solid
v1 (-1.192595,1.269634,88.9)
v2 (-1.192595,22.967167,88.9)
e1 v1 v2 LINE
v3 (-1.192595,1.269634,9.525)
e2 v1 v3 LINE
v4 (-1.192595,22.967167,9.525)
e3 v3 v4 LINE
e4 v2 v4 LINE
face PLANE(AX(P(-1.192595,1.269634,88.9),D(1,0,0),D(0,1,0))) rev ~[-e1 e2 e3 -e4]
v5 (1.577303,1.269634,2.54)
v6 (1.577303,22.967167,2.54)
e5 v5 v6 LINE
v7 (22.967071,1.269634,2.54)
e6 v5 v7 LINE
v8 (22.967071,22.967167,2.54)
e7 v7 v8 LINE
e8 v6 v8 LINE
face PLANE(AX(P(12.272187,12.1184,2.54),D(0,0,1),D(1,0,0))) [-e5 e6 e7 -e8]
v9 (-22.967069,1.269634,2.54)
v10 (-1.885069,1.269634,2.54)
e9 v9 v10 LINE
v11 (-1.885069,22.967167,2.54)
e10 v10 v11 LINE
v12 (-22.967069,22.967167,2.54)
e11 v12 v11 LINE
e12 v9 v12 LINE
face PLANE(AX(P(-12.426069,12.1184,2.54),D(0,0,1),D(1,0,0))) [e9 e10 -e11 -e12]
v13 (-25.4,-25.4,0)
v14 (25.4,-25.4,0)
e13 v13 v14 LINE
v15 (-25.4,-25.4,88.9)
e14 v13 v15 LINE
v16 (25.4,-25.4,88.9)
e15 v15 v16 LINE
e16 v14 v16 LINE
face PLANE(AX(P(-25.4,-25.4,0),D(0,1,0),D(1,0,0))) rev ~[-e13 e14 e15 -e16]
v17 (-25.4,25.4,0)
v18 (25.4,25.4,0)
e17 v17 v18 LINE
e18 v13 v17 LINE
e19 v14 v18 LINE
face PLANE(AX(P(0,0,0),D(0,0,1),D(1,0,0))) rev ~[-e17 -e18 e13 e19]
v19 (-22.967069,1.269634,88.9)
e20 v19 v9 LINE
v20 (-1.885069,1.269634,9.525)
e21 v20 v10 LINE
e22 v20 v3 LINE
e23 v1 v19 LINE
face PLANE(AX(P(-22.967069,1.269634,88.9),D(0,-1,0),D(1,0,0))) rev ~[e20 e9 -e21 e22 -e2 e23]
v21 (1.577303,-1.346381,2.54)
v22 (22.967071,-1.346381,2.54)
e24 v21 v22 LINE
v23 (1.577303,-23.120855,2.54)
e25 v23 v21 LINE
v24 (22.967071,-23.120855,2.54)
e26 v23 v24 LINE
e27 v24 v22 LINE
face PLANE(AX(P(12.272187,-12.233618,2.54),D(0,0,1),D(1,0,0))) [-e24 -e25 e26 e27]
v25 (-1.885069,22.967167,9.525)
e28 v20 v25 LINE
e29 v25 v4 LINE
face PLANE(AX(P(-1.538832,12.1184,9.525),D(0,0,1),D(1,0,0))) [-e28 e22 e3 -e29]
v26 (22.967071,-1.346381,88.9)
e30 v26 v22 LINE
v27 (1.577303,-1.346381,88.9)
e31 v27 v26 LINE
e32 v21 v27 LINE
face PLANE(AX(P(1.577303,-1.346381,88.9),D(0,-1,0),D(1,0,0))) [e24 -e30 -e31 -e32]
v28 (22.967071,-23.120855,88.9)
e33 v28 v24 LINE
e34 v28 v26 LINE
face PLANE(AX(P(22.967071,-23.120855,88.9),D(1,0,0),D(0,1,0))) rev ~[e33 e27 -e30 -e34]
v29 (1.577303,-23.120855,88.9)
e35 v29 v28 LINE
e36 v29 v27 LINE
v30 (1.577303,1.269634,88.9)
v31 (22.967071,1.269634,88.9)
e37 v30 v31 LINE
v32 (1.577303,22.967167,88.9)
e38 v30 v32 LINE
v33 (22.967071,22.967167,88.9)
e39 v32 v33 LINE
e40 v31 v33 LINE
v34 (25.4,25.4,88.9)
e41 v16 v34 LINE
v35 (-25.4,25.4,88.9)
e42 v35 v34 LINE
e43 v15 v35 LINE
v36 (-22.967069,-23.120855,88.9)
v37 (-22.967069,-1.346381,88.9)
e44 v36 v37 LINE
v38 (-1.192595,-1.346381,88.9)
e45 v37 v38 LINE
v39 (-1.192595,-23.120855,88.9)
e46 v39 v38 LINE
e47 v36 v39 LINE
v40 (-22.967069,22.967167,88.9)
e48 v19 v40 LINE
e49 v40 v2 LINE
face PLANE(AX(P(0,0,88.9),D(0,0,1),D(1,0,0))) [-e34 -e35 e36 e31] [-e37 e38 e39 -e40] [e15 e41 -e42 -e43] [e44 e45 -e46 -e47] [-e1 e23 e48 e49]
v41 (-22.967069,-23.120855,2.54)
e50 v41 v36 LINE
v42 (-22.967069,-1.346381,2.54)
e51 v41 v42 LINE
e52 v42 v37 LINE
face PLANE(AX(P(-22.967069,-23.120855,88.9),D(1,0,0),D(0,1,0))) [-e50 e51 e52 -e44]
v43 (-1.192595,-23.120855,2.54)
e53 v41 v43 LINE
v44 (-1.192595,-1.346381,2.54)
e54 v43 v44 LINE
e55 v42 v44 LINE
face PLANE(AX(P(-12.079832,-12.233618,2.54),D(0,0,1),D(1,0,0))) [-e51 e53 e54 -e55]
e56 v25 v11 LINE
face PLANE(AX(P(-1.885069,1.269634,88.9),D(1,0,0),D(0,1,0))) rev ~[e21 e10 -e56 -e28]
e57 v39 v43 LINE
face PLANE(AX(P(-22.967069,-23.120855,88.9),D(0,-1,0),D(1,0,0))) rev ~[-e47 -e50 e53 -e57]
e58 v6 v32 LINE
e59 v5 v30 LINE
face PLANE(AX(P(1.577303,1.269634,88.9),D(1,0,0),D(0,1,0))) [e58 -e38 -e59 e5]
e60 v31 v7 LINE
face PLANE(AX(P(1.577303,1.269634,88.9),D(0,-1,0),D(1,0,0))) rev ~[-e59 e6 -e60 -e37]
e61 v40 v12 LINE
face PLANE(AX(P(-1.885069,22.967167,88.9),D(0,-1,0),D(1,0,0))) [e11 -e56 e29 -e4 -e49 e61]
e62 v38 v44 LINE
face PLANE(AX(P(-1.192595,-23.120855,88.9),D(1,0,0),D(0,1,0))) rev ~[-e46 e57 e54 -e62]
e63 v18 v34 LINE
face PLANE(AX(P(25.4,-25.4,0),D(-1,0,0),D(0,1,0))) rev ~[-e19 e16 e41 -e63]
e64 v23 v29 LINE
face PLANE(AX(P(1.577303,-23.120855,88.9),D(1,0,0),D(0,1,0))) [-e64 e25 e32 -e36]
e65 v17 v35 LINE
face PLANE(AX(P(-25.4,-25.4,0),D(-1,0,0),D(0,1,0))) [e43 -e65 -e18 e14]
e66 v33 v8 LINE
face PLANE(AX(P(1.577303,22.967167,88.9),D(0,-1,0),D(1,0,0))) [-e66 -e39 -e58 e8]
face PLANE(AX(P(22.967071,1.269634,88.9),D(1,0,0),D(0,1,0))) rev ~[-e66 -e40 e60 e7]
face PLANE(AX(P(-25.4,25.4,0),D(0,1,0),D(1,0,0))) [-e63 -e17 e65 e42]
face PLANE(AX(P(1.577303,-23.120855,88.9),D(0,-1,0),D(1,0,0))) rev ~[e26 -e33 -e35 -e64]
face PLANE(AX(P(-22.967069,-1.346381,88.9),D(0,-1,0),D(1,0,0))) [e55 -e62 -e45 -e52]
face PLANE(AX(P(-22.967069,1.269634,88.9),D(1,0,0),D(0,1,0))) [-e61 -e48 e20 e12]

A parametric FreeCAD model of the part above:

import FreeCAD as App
import Part
import Sketcher
from FreeCAD import Vector
Q = App.Units.Quantity

doc = App.newDocument("Part")
body = doc.addObject("PartDesign::Body", "Body")

# Sketch on XY plane
sketch1 = body.newObject("Sketcher::SketchObject", "Sketch")
sketch1.AttachmentSupport = (doc.getObject("XY_Plane"), [""])
sketch1.MapMode = "FlatFace"
sketch1.addGeometry([
    Part.LineSegment(Vector(-25, 25, 0), Vector(-25, -25, 0)),
    Part.LineSegment(Vector(-25, -25, 0), Vector(25, -25, 0)),
    Part.LineSegment(Vector(25, -25, 0), Vector(25, 25, 0)),
    Part.LineSegment(Vector(25, 25, 0), Vector(-25, 25, 0)),
], False)
sketch1.addConstraint([
    Sketcher.Constraint("Coincident", 0, 2, 1, 1),
    Sketcher.Constraint("Coincident", 1, 2, 2, 1),
    Sketcher.Constraint("Coincident", 2, 2, 3, 1),
    Sketcher.Constraint("Coincident", 3, 2, 0, 1),
    Sketcher.Constraint("Vertical", 0),
    Sketcher.Constraint("Horizontal", 1),
    Sketcher.Constraint("Vertical", 2),
    Sketcher.Constraint("Horizontal", 3),
    Sketcher.Constraint("Symmetric", 0, 2, 2, 2, -1, 1),
    Sketcher.Constraint("Equal", 3, 0),
    Sketcher.Constraint("DistanceX", 1, 1, 1, 2, Q("2 in")),
])
pad1 = body.newObject("PartDesign::Pad", "Pad")
pad1.Profile = sketch1
pad1.Length = Q("3.5 in")

# Sketch on XY plane
sketch2 = body.newObject("Sketcher::SketchObject", "Sketch001")
sketch2.AttachmentSupport = (doc.getObject("XY_Plane"), [""])
sketch2.MapMode = "FlatFace"
sketch2.AttachmentOffset = App.Placement(Vector(0, 0, 3.5 * 25.4), App.Rotation())
sketch2.addGeometry([
    Part.LineSegment(Vector(-23, -1, 0), Vector(-23, -23, 0)),  # 0
    Part.LineSegment(Vector(-23, -23, 0), Vector(-1, -23, 0)),  # 1
    Part.LineSegment(Vector(-1, -23, 0), Vector(-1, -1, 0)),  # 2
    Part.LineSegment(Vector(-1, -1, 0), Vector(-23, -1, 0)),  # 3
    Part.LineSegment(Vector(2, -1, 0), Vector(2, -23, 0)),  # 4
    Part.LineSegment(Vector(2, -23, 0), Vector(23, -23, 0)),  # 5
    Part.LineSegment(Vector(23, -23, 0), Vector(23, -1, 0)),  # 6
    Part.LineSegment(Vector(23, -1, 0), Vector(2, -1, 0)),  # 7
    Part.LineSegment(Vector(2, 23, 0), Vector(2, 1, 0)),  # 8
    Part.LineSegment(Vector(2, 1, 0), Vector(23, 1, 0)),  # 9
    Part.LineSegment(Vector(23, 1, 0), Vector(23, 23, 0)),  # 10
    Part.LineSegment(Vector(23, 23, 0), Vector(2, 23, 0)),  # 11
], False)
sketch2.addConstraint([
    Sketcher.Constraint("Coincident", 0, 2, 1, 1),
    Sketcher.Constraint("Coincident", 1, 2, 2, 1),
    Sketcher.Constraint("Coincident", 2, 2, 3, 1),
    Sketcher.Constraint("Coincident", 3, 2, 0, 1),
    Sketcher.Constraint("Coincident", 4, 2, 5, 1),
    Sketcher.Constraint("Coincident", 5, 2, 6, 1),
    Sketcher.Constraint("Coincident", 6, 2, 7, 1),
    Sketcher.Constraint("Coincident", 7, 2, 4, 1),
    Sketcher.Constraint("Coincident", 8, 2, 9, 1),
    Sketcher.Constraint("Coincident", 9, 2, 10, 1),
    Sketcher.Constraint("Coincident", 10, 2, 11, 1),
    Sketcher.Constraint("Coincident", 11, 2, 8, 1),
    Sketcher.Constraint("Vertical", 0),
    Sketcher.Constraint("Horizontal", 1),
    Sketcher.Constraint("Vertical", 2),
    Sketcher.Constraint("Horizontal", 3),
    Sketcher.Constraint("Vertical", 4),
    Sketcher.Constraint("Horizontal", 5),
    Sketcher.Constraint("Vertical", 6),
    Sketcher.Constraint("Horizontal", 7),
    Sketcher.Constraint("Vertical", 8),
    Sketcher.Constraint("Horizontal", 9),
    Sketcher.Constraint("Vertical", 10),
    Sketcher.Constraint("Horizontal", 11),
    Sketcher.Constraint("Symmetric", 0, 2, 5, 2, -2),
    Sketcher.Constraint("Horizontal", 3, 2, 6, 2),
    Sketcher.Constraint("Vertical", 7, 2, 8, 2),
    Sketcher.Constraint("Vertical", 6, 2, 9, 2),
    Sketcher.Constraint("Equal", 3, 0),
    Sketcher.Constraint("DistanceX", 5, 1, 5, 2, Q("21.389768 mm")),
    Sketcher.Constraint("DistanceX", 1, 2, 4, 2, Q("2.769898 mm")),
    Sketcher.Constraint("DistanceX", 1, 1, 1, 2, Q("21.774474 mm")),
    Sketcher.Constraint("DistanceY", 8, 2, 8, 1, Q("21.697533 mm")),
    Sketcher.Constraint("DistanceY", 2, 2, -1, 1, Q("1.346381 mm")),
    Sketcher.Constraint("DistanceY", 4, 2, 8, 2, Q("24.390489 mm")),
])
pocket1 = body.newObject("PartDesign::Pocket", "Pocket")
pocket1.Profile = sketch2
pocket1.Length = Q("3.125 in")

# Sketch on XY plane
sketch3 = body.newObject("Sketcher::SketchObject", "Sketch002")
sketch3.AttachmentSupport = (doc.getObject("XY_Plane"), [""])
sketch3.MapMode = "FlatFace"
sketch3.AttachmentOffset = App.Placement(Vector(0, 0, 3.5 * 25.4), App.Rotation())
sketch3.addGeometry([
    Part.LineSegment(Vector(-23, 23, 0), Vector(-23, 1, 0)),  # 0
    Part.LineSegment(Vector(-23, 1, 0), Vector(-2, 1, 0)),  # 1
    Part.LineSegment(Vector(-2, 1, 0), Vector(-2, 23, 0)),  # 2
    Part.LineSegment(Vector(-2, 23, 0), Vector(-23, 23, 0)),  # 3
    Part.LineSegment(Vector(-23, -1, 0), Vector(-23, -23, 0)),  # 4
    Part.LineSegment(Vector(-23, -23, 0), Vector(-1, -23, 0)),  # 5
    Part.LineSegment(Vector(-1, -23, 0), Vector(-1, -1, 0)),  # 6
    Part.LineSegment(Vector(-1, -1, 0), Vector(-23, -1, 0)),  # 7
    Part.LineSegment(Vector(2, -1, 0), Vector(2, -23, 0)),  # 8
    Part.LineSegment(Vector(2, -23, 0), Vector(23, -23, 0)),  # 9
    Part.LineSegment(Vector(23, -23, 0), Vector(23, -1, 0)),  # 10
    Part.LineSegment(Vector(23, -1, 0), Vector(2, -1, 0)),  # 11
    Part.LineSegment(Vector(2, 23, 0), Vector(2, 1, 0)),  # 12
    Part.LineSegment(Vector(2, 1, 0), Vector(23, 1, 0)),  # 13
    Part.LineSegment(Vector(23, 1, 0), Vector(23, 23, 0)),  # 14
    Part.LineSegment(Vector(23, 23, 0), Vector(2, 23, 0)),  # 15
], False)
sketch3.addConstraint([
    Sketcher.Constraint("Coincident", 0, 2, 1, 1),
    Sketcher.Constraint("Coincident", 1, 2, 2, 1),
    Sketcher.Constraint("Coincident", 2, 2, 3, 1),
    Sketcher.Constraint("Coincident", 3, 2, 0, 1),
    Sketcher.Constraint("Coincident", 4, 2, 5, 1),
    Sketcher.Constraint("Coincident", 5, 2, 6, 1),
    Sketcher.Constraint("Coincident", 6, 2, 7, 1),
    Sketcher.Constraint("Coincident", 7, 2, 4, 1),
    Sketcher.Constraint("Coincident", 8, 2, 9, 1),
    Sketcher.Constraint("Coincident", 9, 2, 10, 1),
    Sketcher.Constraint("Coincident", 10, 2, 11, 1),
    Sketcher.Constraint("Coincident", 11, 2, 8, 1),
    Sketcher.Constraint("Coincident", 12, 2, 13, 1),
    Sketcher.Constraint("Coincident", 13, 2, 14, 1),
    Sketcher.Constraint("Coincident", 14, 2, 15, 1),
    Sketcher.Constraint("Coincident", 15, 2, 12, 1),
    Sketcher.Constraint("Vertical", 0),
    Sketcher.Constraint("Horizontal", 1),
    Sketcher.Constraint("Vertical", 2),
    Sketcher.Constraint("Horizontal", 3),
    Sketcher.Constraint("Vertical", 4),
    Sketcher.Constraint("Horizontal", 5),
    Sketcher.Constraint("Vertical", 6),
    Sketcher.Constraint("Horizontal", 7),
    Sketcher.Constraint("Vertical", 8),
    Sketcher.Constraint("Horizontal", 9),
    Sketcher.Constraint("Vertical", 10),
    Sketcher.Constraint("Horizontal", 11),
    Sketcher.Constraint("Vertical", 12),
    Sketcher.Constraint("Horizontal", 13),
    Sketcher.Constraint("Vertical", 14),
    Sketcher.Constraint("Horizontal", 15),
    Sketcher.Constraint("Symmetric", 4, 2, 9, 2, -2),
    Sketcher.Constraint("Symmetric", 0, 2, 13, 2, -2),
    Sketcher.Constraint("Horizontal", 7, 2, 10, 2),
    Sketcher.Constraint("Horizontal", 3, 2, 14, 2),
    Sketcher.Constraint("Vertical", 3, 2, 4, 2),
    Sketcher.Constraint("Vertical", 11, 2, 12, 2),
    Sketcher.Constraint("Equal", 7, 4),
    Sketcher.Constraint("DistanceX", 1, 1, 1, 2, Q("0.83 in")),
    Sketcher.Constraint("DistanceX", 9, 1, 9, 2, Q("21.389768 mm")),
    Sketcher.Constraint("DistanceX", 5, 2, 8, 2, Q("2.769898 mm")),
    Sketcher.Constraint("DistanceX", 5, 1, 5, 2, Q("21.774474 mm")),
    Sketcher.Constraint("DistanceY", 0, 2, 0, 1, Q("21.697533 mm")),
    Sketcher.Constraint("DistanceY", 6, 2, -1, 1, Q("1.346381 mm")),
    Sketcher.Constraint("DistanceY", 4, 2, 0, 2, Q("24.390489 mm")),
])
pocket2 = body.newObject("PartDesign::Pocket", "Pocket001")
pocket2.Profile = sketch3
pocket2.Length = Q("3.4 in")

# Sketch on XY plane
sketch4 = body.newObject("Sketcher::SketchObject", "Sketch003")
sketch4.AttachmentSupport = (doc.getObject("XY_Plane"), [""])
sketch4.MapMode = "FlatFace"
sketch4.AttachmentOffset = App.Placement(Vector(0, 0, 3.5 * 25.4), App.Rotation())
sketch4.addGeometry([
    Part.LineSegment(Vector(-1.9, 23, 0), Vector(-1.9, 1.3, 0)),
    Part.LineSegment(Vector(-1.9, 1.3, 0), Vector(-1.2, 1.3, 0)),
    Part.LineSegment(Vector(-1.2, 1.3, 0), Vector(-1.2, 23, 0)),
    Part.LineSegment(Vector(-1.2, 23, 0), Vector(-1.9, 23, 0)),
], False)
sketch4.addConstraint([
    Sketcher.Constraint("Coincident", 0, 2, 1, 1),
    Sketcher.Constraint("Coincident", 1, 2, 2, 1),
    Sketcher.Constraint("Coincident", 2, 2, 3, 1),
    Sketcher.Constraint("Coincident", 3, 2, 0, 1),
    Sketcher.Constraint("Vertical", 0),
    Sketcher.Constraint("Horizontal", 1),
    Sketcher.Constraint("Vertical", 2),
    Sketcher.Constraint("Horizontal", 3),
    Sketcher.Constraint("DistanceX", 1, 1, 1, 2, Q("0.692474 mm")),
    Sketcher.Constraint("DistanceY", 0, 2, 0, 1, Q("21.697533 mm")),
    Sketcher.Constraint("DistanceX", 0, 2, -1, 1, Q("1.885069 mm")),
    Sketcher.Constraint("DistanceY", -1, 1, 0, 2, Q("1.269634 mm")),
])
pocket3 = body.newObject("PartDesign::Pocket", "Pocket002")
pocket3.Profile = sketch4
pocket3.Length = Q("3.125 in")

doc.recompute()
